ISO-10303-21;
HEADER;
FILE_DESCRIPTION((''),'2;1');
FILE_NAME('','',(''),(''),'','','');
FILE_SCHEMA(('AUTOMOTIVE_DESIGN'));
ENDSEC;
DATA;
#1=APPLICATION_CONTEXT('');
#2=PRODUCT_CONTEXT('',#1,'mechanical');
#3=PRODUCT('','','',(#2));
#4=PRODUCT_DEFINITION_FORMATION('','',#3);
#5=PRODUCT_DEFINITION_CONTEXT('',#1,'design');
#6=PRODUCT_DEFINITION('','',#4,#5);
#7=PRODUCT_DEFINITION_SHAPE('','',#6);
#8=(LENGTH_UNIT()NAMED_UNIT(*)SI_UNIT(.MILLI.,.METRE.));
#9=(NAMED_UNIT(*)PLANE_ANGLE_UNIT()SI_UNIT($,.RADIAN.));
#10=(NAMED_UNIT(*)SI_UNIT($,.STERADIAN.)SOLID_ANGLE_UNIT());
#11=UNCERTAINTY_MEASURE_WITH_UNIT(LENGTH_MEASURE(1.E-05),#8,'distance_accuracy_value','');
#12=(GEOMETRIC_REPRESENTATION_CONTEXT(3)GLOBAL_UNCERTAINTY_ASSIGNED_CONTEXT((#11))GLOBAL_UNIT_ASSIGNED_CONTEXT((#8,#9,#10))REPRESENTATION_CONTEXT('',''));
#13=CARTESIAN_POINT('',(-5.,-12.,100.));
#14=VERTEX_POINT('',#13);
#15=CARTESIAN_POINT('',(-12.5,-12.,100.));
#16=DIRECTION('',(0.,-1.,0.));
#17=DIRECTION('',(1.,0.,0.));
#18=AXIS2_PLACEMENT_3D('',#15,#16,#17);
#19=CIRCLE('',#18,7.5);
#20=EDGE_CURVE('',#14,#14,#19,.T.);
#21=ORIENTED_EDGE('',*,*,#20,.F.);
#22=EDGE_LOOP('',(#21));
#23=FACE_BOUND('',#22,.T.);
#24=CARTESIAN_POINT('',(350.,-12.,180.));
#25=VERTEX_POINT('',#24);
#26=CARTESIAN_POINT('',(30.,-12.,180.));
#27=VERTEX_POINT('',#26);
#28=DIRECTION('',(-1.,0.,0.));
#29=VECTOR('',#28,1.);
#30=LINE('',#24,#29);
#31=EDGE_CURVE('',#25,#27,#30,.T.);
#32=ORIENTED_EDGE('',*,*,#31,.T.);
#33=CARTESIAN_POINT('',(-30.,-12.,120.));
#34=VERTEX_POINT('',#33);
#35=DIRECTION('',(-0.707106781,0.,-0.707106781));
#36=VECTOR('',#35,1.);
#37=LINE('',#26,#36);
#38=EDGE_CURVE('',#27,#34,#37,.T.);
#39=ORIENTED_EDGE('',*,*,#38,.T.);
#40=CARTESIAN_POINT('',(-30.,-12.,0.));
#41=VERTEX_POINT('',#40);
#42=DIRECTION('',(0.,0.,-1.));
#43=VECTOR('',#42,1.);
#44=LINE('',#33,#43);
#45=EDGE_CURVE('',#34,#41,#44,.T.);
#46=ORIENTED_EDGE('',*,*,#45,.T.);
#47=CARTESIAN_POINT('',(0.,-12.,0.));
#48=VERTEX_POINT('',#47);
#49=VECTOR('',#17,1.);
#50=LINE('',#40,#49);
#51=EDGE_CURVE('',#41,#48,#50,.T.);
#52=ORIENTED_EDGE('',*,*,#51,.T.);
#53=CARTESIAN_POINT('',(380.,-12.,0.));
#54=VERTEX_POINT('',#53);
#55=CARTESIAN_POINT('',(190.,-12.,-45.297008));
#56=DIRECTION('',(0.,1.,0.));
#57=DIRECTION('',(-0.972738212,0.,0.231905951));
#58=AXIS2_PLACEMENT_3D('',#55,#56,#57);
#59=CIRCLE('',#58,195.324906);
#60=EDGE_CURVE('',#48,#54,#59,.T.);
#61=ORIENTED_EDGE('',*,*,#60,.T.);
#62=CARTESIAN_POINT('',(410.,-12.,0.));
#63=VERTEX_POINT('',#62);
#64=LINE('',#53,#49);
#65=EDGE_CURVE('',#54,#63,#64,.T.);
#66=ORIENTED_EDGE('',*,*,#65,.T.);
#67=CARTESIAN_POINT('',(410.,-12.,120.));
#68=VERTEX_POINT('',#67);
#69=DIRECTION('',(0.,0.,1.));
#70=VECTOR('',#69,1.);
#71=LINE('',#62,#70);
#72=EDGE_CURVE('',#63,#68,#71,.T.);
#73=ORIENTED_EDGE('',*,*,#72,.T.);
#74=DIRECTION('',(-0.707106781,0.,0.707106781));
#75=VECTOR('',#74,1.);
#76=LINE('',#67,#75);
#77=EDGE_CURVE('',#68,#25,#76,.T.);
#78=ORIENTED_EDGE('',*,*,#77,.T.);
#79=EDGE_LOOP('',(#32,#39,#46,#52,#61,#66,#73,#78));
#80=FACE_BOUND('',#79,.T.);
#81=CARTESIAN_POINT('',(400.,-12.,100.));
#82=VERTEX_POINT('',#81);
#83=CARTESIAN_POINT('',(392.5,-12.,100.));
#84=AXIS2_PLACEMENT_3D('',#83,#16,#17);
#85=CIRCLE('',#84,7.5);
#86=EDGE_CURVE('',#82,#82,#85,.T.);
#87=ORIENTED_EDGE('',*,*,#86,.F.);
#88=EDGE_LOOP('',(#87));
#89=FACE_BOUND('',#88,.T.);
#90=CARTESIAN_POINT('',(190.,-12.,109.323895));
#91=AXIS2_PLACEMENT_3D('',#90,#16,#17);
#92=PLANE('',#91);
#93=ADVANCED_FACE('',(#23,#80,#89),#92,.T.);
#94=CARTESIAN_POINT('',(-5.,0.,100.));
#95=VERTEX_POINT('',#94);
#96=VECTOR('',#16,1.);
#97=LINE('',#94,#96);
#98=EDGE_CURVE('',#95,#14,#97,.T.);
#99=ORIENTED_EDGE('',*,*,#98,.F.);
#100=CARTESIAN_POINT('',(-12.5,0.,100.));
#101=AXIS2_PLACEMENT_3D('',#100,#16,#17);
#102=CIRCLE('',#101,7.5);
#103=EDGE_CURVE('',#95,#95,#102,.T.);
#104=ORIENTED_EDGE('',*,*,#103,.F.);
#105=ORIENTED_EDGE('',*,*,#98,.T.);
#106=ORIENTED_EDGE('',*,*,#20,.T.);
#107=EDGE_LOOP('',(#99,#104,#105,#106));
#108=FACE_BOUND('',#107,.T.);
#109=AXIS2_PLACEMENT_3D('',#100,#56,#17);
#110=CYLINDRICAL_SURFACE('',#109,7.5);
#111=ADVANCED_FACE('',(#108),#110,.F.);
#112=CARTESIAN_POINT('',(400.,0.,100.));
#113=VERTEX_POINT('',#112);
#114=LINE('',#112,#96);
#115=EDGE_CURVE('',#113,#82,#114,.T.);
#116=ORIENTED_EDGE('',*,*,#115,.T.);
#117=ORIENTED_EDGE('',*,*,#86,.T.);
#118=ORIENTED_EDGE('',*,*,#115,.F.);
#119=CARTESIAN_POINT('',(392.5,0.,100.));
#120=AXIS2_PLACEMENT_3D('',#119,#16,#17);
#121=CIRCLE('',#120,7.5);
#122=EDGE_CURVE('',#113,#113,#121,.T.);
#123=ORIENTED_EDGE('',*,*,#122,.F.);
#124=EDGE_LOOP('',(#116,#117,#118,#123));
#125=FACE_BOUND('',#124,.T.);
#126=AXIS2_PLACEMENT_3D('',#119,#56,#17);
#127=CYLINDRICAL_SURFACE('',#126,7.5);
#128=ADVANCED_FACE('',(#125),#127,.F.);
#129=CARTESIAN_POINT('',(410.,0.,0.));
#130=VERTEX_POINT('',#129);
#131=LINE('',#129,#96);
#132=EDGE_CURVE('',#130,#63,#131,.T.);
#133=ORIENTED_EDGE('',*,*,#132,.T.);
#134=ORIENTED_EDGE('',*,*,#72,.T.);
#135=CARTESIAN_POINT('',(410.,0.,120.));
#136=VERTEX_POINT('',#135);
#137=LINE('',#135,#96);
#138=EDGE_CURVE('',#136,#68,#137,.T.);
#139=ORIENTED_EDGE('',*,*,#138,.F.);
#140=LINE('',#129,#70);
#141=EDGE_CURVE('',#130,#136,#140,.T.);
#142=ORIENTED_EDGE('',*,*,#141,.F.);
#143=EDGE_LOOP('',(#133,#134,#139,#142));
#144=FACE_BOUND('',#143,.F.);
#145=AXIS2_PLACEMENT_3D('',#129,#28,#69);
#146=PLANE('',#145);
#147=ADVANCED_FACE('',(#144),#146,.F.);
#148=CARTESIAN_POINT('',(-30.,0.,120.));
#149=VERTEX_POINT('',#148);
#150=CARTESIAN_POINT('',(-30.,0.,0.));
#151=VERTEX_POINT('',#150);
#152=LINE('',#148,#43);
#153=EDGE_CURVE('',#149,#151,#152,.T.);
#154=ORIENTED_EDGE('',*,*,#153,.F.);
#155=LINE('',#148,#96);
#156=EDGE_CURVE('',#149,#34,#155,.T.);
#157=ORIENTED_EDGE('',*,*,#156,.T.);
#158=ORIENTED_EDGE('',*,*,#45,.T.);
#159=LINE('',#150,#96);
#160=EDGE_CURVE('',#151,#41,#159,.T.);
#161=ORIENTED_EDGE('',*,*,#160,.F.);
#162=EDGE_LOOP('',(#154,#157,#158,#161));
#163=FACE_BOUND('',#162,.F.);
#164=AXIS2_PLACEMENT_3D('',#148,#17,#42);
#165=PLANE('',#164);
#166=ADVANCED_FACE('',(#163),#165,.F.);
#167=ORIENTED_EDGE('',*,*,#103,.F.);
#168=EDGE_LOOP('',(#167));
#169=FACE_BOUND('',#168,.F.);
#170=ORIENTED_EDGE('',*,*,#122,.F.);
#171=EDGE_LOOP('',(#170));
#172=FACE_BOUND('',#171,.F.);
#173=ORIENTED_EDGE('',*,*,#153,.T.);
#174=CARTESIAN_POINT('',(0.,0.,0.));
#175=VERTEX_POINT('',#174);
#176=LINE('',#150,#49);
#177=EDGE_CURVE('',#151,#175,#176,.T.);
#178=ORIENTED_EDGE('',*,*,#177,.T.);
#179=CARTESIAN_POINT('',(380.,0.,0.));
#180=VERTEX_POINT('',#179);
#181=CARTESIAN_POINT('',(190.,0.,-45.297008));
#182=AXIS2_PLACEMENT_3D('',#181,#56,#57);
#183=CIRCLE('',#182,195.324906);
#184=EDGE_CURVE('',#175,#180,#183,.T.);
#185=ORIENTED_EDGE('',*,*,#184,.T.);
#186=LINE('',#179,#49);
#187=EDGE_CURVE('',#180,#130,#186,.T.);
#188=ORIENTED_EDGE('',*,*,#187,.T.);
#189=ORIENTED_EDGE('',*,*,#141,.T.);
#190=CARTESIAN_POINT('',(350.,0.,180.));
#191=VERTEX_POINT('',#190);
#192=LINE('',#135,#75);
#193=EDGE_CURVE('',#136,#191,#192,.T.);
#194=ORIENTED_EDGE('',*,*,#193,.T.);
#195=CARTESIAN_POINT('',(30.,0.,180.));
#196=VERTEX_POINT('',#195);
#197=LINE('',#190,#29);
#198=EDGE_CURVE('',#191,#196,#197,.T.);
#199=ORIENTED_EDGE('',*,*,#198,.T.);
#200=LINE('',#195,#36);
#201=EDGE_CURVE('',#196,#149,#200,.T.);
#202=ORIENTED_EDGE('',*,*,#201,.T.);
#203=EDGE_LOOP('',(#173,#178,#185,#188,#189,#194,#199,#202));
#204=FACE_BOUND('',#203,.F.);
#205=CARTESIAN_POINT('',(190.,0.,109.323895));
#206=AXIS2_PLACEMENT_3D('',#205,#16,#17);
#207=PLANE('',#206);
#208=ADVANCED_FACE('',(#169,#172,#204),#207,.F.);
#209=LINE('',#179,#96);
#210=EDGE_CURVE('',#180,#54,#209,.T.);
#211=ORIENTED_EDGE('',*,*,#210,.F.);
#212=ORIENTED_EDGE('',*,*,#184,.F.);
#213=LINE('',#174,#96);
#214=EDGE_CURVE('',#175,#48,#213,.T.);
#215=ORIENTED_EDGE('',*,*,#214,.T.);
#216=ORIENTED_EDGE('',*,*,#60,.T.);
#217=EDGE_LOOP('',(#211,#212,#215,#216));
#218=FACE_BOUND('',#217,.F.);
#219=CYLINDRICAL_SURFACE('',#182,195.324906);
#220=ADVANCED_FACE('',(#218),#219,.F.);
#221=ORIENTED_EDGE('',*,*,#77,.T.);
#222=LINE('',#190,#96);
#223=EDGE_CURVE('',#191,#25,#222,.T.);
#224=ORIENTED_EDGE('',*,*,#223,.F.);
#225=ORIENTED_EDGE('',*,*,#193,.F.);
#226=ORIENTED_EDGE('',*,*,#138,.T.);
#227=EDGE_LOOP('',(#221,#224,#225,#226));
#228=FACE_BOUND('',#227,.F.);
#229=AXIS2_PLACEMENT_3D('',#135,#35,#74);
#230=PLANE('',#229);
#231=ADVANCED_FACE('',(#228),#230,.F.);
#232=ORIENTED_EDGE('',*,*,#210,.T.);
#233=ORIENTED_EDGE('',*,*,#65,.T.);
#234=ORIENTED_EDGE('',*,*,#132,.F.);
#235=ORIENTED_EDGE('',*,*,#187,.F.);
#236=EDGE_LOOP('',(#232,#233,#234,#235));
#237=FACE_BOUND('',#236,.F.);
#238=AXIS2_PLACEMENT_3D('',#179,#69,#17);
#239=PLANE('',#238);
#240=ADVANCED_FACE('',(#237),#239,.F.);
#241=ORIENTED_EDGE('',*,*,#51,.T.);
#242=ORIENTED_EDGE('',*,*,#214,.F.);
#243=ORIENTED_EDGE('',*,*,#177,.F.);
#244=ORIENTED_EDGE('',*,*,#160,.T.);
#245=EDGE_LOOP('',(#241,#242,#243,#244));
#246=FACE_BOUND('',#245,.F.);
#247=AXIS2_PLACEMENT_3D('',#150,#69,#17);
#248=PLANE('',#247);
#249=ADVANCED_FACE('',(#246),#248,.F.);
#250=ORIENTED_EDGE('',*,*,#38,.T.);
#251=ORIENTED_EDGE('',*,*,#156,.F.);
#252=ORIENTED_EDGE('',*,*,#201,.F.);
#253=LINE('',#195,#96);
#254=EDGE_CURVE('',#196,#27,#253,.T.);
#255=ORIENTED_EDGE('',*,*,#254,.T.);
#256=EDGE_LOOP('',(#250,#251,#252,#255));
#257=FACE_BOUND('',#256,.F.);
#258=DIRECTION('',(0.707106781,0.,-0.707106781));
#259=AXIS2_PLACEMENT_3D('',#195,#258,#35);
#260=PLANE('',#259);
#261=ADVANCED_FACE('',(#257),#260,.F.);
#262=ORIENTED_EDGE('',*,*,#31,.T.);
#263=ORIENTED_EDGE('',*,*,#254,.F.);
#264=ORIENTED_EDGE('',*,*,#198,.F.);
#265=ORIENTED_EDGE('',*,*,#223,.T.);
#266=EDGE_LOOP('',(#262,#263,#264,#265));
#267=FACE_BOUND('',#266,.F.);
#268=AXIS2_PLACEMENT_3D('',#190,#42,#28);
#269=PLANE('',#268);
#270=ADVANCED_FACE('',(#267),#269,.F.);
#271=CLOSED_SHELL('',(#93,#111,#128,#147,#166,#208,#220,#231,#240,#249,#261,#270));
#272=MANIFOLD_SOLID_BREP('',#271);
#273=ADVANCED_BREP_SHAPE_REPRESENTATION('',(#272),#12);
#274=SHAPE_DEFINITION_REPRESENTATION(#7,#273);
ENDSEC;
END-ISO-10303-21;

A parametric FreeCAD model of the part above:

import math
import FreeCAD as App
import Part
import Sketcher

doc = App.newDocument("Part")
body = doc.addObject("PartDesign::Body", "Body")

# Sketch on XZ plane
sketch1 = doc.addObject("Sketcher::SketchObject", "Sketch")
body.addObject(sketch1)
sketch1.AttachmentSupport = (doc.XZ_Plane, [""])
sketch1.MapMode = "FlatFace"
sketch1.addGeometry(Part.ArcOfCircle(Part.Circle(App.Vector(190, -45, 0), App.Vector(0, 0, 1), 195), math.radians(13), math.radians(167)), False)
sketch1.addGeometry(Part.LineSegment(App.Vector(380, 0, 0), App.Vector(410, 0, 0)), False)
sketch1.addGeometry(Part.LineSegment(App.Vector(410, 0, 0), App.Vector(410, 120, 0)), False)
sketch1.addGeometry(Part.LineSegment(App.Vector(410, 120, 0), App.Vector(350, 180, 0)), False)
sketch1.addGeometry(Part.LineSegment(App.Vector(350, 180, 0), App.Vector(30, 180, 0)), False)
sketch1.addGeometry(Part.LineSegment(App.Vector(30, 180, 0), App.Vector(-30, 120, 0)), False)
sketch1.addGeometry(Part.LineSegment(App.Vector(-30, 120, 0), App.Vector(-30, 0, 0)), False)
sketch1.addGeometry(Part.LineSegment(App.Vector(-30, 0, 0), App.Vector(0, 0, 0)), False)
sketch1.addGeometry(Part.Circle(App.Vector(-12, 100, 0), App.Vector(0, 0, 1), 8), False)
sketch1.addGeometry(Part.Circle(App.Vector(392, 100, 0), App.Vector(0, 0, 1), 8), False)
sketch1.addConstraint(Sketcher.Constraint("Coincident", 0, 1, 1, 1))
sketch1.addConstraint(Sketcher.Constraint("Coincident", 1, 2, 2, 1))
sketch1.addConstraint(Sketcher.Constraint("Coincident", 2, 2, 3, 1))
sketch1.addConstraint(Sketcher.Constraint("Coincident", 3, 2, 4, 1))
sketch1.addConstraint(Sketcher.Constraint("Coincident", 4, 2, 5, 1))
sketch1.addConstraint(Sketcher.Constraint("Coincident", 5, 2, 6, 1))
sketch1.addConstraint(Sketcher.Constraint("Coincident", 6, 2, 7, 1))
sketch1.addConstraint(Sketcher.Constraint("Coincident", 7, 2, 0, 2))
sketch1.addConstraint(Sketcher.Constraint("Horizontal", 1))
sketch1.addConstraint(Sketcher.Constraint("Vertical", 2))
sketch1.addConstraint(Sketcher.Constraint("Horizontal", 4))
sketch1.addConstraint(Sketcher.Constraint("Vertical", 6))
sketch1.addConstraint(Sketcher.Constraint("Horizontal", 7))
sketch1.addConstraint(Sketcher.Constraint("Coincident", 7, 2, -1, 1))
sketch1.addConstraint(Sketcher.Constraint("Equal", 8, 9))
sketch1.addConstraint(Sketcher.Constraint("PointOnObject", 0, 1, -1))
sketch1.addConstraint(Sketcher.Constraint("Perpendicular", 3, 5))
sketch1.addConstraint(Sketcher.Constraint("Horizontal", 8, 3, 9, 3))
sketch1.addConstraint(Sketcher.Constraint("Horizontal", 2, 2, 5, 2))
sketch1.addConstraint(Sketcher.Constraint("Equal", 1, 7))
sketch1.addConstraint(Sketcher.Constraint("Equal", 3, 5))
sketch1.addConstraint(Sketcher.Constraint("Diameter", 8, 15.0))
sketch1.addConstraint(Sketcher.Constraint("DistanceX", 1, 1, 1, 2, 30.0))
sketch1.addConstraint(Sketcher.Constraint("DistanceX", 4, 2, 4, 1, 320.0))
sketch1.addConstraint(Sketcher.Constraint("DistanceY", 2, 1, 2, 2, 120.0))
sketch1.addConstraint(Sketcher.Constraint("DistanceX", -1, 1, 0, 3, 190.0))
sketch1.addConstraint(Sketcher.Constraint("DistanceY", -1, 1, 8, 3, 100.0))
sketch1.addConstraint(Sketcher.Constraint("DistanceX", 8, 3, 9, 3, 405.0))
sketch1.addConstraint(Sketcher.Constraint("DistanceX", 8, 3, -1, 1, 12.5))
sketch1.addConstraint(Sketcher.Constraint("Radius", 0, 195.324906))
pad1 = doc.addObject("PartDesign::Pad", "Pad")
body.addObject(pad1)
pad1.Profile = sketch1
pad1.Length = 12

doc.recompute()
